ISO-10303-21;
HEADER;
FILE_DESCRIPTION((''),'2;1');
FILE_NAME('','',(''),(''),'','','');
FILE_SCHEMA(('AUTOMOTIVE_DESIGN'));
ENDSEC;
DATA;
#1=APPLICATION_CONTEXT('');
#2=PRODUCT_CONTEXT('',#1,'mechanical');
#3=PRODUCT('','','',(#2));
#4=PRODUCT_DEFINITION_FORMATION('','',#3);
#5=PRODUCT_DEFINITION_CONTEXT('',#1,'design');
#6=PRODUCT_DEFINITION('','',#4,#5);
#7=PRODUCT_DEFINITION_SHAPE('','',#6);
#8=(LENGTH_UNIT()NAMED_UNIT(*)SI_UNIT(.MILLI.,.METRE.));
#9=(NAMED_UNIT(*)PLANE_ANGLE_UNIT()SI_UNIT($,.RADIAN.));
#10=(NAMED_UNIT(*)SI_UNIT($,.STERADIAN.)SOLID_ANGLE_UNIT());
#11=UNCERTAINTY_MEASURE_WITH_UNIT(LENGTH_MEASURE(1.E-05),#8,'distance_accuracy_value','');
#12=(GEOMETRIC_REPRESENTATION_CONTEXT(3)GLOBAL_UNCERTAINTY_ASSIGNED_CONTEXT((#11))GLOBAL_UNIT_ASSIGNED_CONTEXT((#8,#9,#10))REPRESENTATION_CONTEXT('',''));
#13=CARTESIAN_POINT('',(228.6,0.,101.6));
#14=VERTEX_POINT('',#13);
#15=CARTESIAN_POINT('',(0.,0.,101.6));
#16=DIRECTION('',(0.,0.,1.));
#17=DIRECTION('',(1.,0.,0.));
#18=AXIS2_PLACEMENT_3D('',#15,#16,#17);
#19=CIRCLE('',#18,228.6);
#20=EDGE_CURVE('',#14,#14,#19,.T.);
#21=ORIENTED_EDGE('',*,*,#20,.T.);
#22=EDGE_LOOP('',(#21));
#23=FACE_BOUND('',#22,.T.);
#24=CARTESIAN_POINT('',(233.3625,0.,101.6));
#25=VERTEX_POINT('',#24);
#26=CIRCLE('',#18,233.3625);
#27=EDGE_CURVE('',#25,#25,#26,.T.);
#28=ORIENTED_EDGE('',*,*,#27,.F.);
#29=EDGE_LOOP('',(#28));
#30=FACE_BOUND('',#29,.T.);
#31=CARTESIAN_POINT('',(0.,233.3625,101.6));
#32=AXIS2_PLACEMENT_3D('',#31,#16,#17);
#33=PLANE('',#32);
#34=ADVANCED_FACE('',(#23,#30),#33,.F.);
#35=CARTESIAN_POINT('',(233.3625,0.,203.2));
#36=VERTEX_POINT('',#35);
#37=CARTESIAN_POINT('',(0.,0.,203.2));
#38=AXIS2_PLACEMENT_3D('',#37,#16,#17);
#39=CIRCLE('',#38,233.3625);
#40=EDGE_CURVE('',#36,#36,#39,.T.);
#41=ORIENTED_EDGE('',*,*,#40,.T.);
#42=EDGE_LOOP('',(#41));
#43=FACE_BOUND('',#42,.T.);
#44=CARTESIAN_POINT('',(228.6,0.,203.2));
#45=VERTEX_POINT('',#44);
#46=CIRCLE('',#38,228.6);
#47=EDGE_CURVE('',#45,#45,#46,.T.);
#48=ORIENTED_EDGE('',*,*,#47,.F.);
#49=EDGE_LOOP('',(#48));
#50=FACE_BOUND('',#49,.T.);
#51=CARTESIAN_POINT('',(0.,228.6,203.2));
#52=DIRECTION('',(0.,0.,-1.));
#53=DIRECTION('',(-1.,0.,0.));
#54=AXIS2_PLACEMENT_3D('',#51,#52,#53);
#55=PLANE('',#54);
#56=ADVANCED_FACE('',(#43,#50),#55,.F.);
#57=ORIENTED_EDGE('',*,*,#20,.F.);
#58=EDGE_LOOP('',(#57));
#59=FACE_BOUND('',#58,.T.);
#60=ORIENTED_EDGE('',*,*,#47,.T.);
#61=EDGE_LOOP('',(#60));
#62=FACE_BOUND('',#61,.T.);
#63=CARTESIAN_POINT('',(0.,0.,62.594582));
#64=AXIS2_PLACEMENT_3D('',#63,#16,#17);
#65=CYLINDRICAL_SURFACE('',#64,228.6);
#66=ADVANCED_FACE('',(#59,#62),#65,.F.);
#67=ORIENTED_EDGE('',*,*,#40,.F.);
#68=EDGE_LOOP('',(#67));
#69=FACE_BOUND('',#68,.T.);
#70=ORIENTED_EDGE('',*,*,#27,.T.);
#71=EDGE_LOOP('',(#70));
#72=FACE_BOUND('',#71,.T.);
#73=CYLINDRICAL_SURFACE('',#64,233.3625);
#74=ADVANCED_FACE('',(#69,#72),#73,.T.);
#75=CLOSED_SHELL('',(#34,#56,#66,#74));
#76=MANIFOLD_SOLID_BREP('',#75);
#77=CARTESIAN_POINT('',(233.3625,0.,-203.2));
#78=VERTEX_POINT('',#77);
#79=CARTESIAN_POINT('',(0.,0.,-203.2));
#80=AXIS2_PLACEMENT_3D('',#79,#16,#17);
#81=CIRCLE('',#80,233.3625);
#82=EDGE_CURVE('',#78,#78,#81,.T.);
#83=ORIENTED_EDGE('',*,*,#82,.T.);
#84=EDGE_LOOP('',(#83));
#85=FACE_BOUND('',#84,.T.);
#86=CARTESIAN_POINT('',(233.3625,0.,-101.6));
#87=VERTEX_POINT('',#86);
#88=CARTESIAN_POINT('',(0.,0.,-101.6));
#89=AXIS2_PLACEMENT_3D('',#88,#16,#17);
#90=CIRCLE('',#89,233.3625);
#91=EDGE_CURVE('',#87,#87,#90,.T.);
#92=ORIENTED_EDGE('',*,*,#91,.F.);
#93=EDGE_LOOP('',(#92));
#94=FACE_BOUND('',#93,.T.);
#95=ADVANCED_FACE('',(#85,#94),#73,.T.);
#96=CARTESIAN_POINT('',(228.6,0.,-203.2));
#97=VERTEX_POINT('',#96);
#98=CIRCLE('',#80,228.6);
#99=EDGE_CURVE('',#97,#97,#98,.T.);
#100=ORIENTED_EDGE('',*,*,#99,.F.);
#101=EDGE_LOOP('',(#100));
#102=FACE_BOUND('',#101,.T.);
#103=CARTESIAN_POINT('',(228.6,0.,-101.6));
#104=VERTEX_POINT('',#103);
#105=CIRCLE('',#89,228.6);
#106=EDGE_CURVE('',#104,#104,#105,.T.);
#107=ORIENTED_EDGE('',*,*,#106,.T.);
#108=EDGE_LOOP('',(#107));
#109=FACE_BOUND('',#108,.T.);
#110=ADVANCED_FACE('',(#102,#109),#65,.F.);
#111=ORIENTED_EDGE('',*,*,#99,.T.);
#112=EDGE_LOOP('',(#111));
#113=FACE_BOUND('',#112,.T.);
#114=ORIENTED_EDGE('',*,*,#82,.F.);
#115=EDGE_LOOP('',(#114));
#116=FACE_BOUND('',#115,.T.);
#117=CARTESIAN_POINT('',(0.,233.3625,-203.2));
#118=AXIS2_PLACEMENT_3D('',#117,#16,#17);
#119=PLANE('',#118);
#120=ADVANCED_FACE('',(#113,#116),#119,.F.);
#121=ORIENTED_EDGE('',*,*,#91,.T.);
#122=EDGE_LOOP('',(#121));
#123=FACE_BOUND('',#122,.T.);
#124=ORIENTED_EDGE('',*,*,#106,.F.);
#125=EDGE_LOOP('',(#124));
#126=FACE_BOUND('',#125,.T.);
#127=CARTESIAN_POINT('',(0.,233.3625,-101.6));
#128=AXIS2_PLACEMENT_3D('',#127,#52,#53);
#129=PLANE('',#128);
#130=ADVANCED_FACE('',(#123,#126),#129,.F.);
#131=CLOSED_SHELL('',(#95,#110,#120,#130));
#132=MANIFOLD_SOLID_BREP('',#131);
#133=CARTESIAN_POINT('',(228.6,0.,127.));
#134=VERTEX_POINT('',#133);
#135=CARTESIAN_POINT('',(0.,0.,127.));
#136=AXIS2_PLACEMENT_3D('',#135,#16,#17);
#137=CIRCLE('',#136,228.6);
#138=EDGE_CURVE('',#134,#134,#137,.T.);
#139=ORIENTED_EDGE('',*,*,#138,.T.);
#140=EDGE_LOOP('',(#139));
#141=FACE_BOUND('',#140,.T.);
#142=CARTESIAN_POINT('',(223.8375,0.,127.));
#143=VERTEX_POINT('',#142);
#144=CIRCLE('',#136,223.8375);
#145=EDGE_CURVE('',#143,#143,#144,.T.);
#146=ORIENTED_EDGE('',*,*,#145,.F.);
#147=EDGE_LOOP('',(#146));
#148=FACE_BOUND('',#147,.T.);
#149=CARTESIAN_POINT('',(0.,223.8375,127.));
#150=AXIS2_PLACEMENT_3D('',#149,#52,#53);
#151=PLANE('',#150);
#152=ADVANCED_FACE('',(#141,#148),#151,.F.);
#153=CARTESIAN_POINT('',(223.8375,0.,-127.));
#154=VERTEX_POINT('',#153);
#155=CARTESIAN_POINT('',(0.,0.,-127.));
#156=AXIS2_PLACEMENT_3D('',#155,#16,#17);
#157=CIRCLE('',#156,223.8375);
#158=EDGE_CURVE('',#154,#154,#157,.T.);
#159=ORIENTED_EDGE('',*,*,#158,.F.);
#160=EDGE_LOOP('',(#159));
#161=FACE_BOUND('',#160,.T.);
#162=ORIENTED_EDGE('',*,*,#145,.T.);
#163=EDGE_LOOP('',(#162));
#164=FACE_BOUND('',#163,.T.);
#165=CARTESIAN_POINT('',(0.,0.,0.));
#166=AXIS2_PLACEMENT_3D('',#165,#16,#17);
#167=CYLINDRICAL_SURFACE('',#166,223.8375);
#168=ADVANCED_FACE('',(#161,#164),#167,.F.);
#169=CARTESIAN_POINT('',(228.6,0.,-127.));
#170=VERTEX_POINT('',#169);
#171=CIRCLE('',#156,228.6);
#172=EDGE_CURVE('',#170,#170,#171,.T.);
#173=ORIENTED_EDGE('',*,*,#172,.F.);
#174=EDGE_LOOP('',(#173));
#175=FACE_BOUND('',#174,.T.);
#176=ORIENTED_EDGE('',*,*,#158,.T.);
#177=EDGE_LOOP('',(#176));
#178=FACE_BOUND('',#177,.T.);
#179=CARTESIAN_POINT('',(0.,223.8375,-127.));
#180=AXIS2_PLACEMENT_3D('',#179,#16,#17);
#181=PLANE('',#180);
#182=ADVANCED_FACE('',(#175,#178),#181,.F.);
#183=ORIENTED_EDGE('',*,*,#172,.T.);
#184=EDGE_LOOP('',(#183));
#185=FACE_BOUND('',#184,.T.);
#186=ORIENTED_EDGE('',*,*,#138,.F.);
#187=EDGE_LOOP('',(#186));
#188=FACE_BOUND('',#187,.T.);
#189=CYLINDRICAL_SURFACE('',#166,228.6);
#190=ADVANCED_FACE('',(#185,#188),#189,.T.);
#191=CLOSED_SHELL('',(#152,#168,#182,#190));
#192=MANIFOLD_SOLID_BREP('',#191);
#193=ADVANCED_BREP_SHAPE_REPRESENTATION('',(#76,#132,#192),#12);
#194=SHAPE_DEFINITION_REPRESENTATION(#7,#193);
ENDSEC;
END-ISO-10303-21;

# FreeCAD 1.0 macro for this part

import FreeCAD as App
import Part
import Sketcher
from FreeCAD import Vector
Q = App.Units.Quantity

doc = App.newDocument("Part")
body = doc.addObject("PartDesign::Body", "Body")
body.AllowCompound = True

# Sketch on YZ plane
sketch1 = body.newObject("Sketcher::SketchObject", "Sketch")
sketch1.AttachmentSupport = (doc.getObject("YZ_Plane"), [""])
sketch1.MapMode = "FlatFace"
sketch1.addGeometry([
    Part.LineSegment(Vector(233.4, 203.2, 0), Vector(228.6, 203.2, 0)),  # 0
    Part.LineSegment(Vector(228.6, 203.2, 0), Vector(228.6, 101.6, 0)),  # 1
    Part.LineSegment(Vector(228.6, 101.6, 0), Vector(233.4, 101.6, 0)),  # 2
    Part.LineSegment(Vector(233.4, 101.6, 0), Vector(233.4, 203.2, 0)),  # 3
    Part.LineSegment(Vector(233.4, -101.6, 0), Vector(228.6, -101.6, 0)),  # 4
    Part.LineSegment(Vector(228.6, -101.6, 0), Vector(228.6, -203.2, 0)),  # 5
    Part.LineSegment(Vector(228.6, -203.2, 0), Vector(233.4, -203.2, 0)),  # 6
    Part.LineSegment(Vector(233.4, -203.2, 0), Vector(233.4, -101.6, 0)),  # 7
], False)
sketch1.addConstraint([
    Sketcher.Constraint("Coincident", 0, 2, 1, 1),
    Sketcher.Constraint("Coincident", 1, 2, 2, 1),
    Sketcher.Constraint("Coincident", 2, 2, 3, 1),
    Sketcher.Constraint("Coincident", 3, 2, 0, 1),
    Sketcher.Constraint("Coincident", 4, 2, 5, 1),
    Sketcher.Constraint("Coincident", 5, 2, 6, 1),
    Sketcher.Constraint("Coincident", 6, 2, 7, 1),
    Sketcher.Constraint("Coincident", 7, 2, 4, 1),
    Sketcher.Constraint("Horizontal", 0),
    Sketcher.Constraint("Vertical", 1),
    Sketcher.Constraint("Horizontal", 2),
    Sketcher.Constraint("Vertical", 3),
    Sketcher.Constraint("Horizontal", 4),
    Sketcher.Constraint("Vertical", 5),
    Sketcher.Constraint("Horizontal", 6),
    Sketcher.Constraint("Vertical", 7),
    Sketcher.Constraint("Symmetric", 1, 2, 4, 2, -1),
    Sketcher.Constraint("Symmetric", 3, 2, 6, 2, -1),
    Sketcher.Constraint("DistanceY", 1, 2, 1, 1, Q("4 in")),
    Sketcher.Constraint("DistanceX", -1, 1, 0, 2, Q("9 in")),
    Sketcher.Constraint("DistanceY", -1, 1, 0, 2, Q("8 in")),
    Sketcher.Constraint("DistanceX", 0, 2, 0, 1, Q("0.1875 in")),
])
revolution = body.newObject("PartDesign::Revolution", "Revolution")
revolution.Profile = sketch1
revolution.ReferenceAxis = (sketch1, ["V_Axis"])
revolution.Angle = 360
body2 = doc.addObject("PartDesign::Body", "Body001")

# Sketch on YZ plane
sketch2 = body2.newObject("Sketcher::SketchObject", "Sketch001")
sketch2.AttachmentSupport = (doc.getObject("YZ_Plane001"), [""])
sketch2.MapMode = "FlatFace"
sketch2.addGeometry([
    Part.LineSegment(Vector(228.6, 127, 0), Vector(223.8, 127, 0)),
    Part.LineSegment(Vector(223.8, 127, 0), Vector(223.8, -127, 0)),
    Part.LineSegment(Vector(223.8, -127, 0), Vector(228.6, -127, 0)),
    Part.LineSegment(Vector(228.6, -127, 0), Vector(228.6, 127, 0)),
], False)
sketch2.addConstraint([
    Sketcher.Constraint("Coincident", 0, 2, 1, 1),
    Sketcher.Constraint("Coincident", 1, 2, 2, 1),
    Sketcher.Constraint("Coincident", 2, 2, 3, 1),
    Sketcher.Constraint("Coincident", 3, 2, 0, 1),
    Sketcher.Constraint("Horizontal", 0),
    Sketcher.Constraint("Vertical", 1),
    Sketcher.Constraint("Horizontal", 2),
    Sketcher.Constraint("Vertical", 3),
    Sketcher.Constraint("DistanceY", 1, 2, 1, 1, Q("10 in")),
    Sketcher.Constraint("DistanceY", -1, 1, 0, 2, Q("5 in")),
    Sketcher.Constraint("DistanceX", -1, 1, 2, 2, Q("9 in")),
    Sketcher.Constraint("DistanceX", 0, 2, 0, 1, Q("0.1875 in")),
])
revolution2 = body2.newObject("PartDesign::Revolution", "Revolution001")
revolution2.Profile = sketch2
revolution2.ReferenceAxis = (sketch2, ["V_Axis"])
revolution2.Angle = 360

doc.recompute()
